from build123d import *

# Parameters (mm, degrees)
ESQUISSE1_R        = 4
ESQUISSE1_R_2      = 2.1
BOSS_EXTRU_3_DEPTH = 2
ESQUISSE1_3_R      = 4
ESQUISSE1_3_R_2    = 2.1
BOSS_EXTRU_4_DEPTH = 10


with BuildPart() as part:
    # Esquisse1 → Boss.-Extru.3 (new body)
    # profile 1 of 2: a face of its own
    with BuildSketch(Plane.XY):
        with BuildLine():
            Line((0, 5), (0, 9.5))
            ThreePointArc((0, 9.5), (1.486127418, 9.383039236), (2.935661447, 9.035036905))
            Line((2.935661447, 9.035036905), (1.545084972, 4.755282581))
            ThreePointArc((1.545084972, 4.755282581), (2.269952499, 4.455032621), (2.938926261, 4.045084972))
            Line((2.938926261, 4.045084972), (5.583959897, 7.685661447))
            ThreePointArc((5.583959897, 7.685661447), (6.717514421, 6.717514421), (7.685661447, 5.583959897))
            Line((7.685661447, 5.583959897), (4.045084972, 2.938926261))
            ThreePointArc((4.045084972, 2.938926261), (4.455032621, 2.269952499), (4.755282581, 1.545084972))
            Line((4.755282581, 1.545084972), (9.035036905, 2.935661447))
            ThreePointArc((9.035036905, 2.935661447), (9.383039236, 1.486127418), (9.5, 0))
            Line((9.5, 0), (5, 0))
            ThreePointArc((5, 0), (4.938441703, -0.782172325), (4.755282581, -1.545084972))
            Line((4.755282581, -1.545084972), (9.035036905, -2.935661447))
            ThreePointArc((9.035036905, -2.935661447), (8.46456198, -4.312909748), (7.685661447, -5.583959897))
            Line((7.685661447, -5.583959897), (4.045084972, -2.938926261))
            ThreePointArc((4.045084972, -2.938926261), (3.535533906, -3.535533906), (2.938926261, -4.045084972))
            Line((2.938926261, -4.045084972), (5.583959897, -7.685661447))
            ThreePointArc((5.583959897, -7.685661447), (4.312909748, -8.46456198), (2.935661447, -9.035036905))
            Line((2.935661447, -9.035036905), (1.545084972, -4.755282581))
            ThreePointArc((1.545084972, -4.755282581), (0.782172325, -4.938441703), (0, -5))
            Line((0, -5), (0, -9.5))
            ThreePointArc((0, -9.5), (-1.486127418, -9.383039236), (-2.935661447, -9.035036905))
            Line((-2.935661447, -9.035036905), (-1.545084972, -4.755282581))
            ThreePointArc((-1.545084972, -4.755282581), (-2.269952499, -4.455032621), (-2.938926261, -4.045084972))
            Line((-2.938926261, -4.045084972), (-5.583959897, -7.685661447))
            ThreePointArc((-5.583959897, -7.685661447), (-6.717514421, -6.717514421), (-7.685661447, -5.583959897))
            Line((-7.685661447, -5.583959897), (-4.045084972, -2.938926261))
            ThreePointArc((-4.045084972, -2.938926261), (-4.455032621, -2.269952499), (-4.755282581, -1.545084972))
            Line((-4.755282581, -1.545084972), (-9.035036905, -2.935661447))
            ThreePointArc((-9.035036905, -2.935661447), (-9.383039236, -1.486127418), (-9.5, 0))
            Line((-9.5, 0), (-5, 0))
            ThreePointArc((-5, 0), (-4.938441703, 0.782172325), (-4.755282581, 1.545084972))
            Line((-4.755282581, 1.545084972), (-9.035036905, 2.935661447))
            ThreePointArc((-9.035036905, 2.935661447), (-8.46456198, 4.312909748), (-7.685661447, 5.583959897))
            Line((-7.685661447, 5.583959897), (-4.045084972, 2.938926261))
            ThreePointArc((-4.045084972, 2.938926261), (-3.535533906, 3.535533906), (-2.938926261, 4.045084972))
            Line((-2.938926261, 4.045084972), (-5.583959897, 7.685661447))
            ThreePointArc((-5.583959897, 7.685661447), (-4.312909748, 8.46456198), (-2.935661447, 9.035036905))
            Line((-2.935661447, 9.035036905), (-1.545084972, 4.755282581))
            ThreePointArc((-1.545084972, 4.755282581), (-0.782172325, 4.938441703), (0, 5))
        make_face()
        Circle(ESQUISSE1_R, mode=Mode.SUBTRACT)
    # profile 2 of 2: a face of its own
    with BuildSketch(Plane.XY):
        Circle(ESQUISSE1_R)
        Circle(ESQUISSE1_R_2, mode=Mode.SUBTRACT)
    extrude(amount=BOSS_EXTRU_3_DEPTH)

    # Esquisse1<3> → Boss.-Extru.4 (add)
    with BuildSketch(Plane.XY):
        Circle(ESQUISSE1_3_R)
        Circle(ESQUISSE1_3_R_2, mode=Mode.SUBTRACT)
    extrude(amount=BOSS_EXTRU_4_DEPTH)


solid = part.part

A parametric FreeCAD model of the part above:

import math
import FreeCAD as App
import Part
import Sketcher
Q = App.Units.Quantity

doc = App.newDocument("Part")
params = doc.addObject("Spreadsheet::Sheet", "Params")
for row, (alias, value) in enumerate([
    ("sketch1_radius", "5 mm"),
    ("sketch1_diameter", "4.2 mm"),
    ("sketch1_radius2", "9.5 mm"),
    ("pad1_length", "2 mm"),
    ("sketch2_diameter", "8 mm"),
    ("sketch2_diameter2", "4.2 mm"),
    ("pad2_length", "10 mm"),
], start=1):
    params.set(f"A{row}", alias)
    params.set(f"B{row}", "=" + value)
    params.setAlias(f"B{row}", alias)

body = doc.addObject("PartDesign::Body", "Body")

# Sketch on XY plane
sketch1 = body.newObject("Sketcher::SketchObject", "Sketch")
sketch1.AttachmentSupport = (doc.getObject("XY_Plane"), [""])
sketch1.MapMode = "FlatFace"
sketch1.addGeometry([
    Part.LineSegment(App.Vector(0, 9.5, 0), App.Vector(0, 5, 0)),  # 0
    Part.ArcOfCircle(Part.Circle(App.Vector(0, 0, 0), App.Vector(0, 0, 1), 5), math.radians(90), math.radians(108)),  # 1
    Part.LineSegment(App.Vector(-1.545085, 4.755283, 0), App.Vector(-2.935661, 9.035037, 0)),  # 2
    Part.ArcOfCircle(Part.Circle(App.Vector(0, 0, 0), App.Vector(0, 0, 1), 9.5), math.radians(108), math.radians(126)),  # 3
    Part.LineSegment(App.Vector(-5.58396, 7.685661, 0), App.Vector(-2.938926, 4.045085, 0)),  # 4
    Part.ArcOfCircle(Part.Circle(App.Vector(0, 0, 0), App.Vector(0, 0, 1), 5), math.radians(126), math.radians(144)),  # 5
    Part.LineSegment(App.Vector(-4.045085, 2.938926, 0), App.Vector(-7.685661, 5.58396, 0)),  # 6
    Part.ArcOfCircle(Part.Circle(App.Vector(0, 0, 0), App.Vector(0, 0, 1), 9.5), math.radians(144), math.radians(162)),  # 7
    Part.LineSegment(App.Vector(-9.035037, 2.935661, 0), App.Vector(-4.755283, 1.545085, 0)),  # 8
    Part.ArcOfCircle(Part.Circle(App.Vector(0, 0, 0), App.Vector(0, 0, 1), 5), math.radians(162), math.radians(180)),  # 9
    Part.LineSegment(App.Vector(-5, 0, 0), App.Vector(-9.5, 0, 0)),  # 10
    Part.ArcOfCircle(Part.Circle(App.Vector(0, 0, 0), App.Vector(0, 0, 1), 9.5), math.radians(180), math.radians(198)),  # 11
    Part.LineSegment(App.Vector(-9.035037, -2.935661, 0), App.Vector(-4.755283, -1.545085, 0)),  # 12
    Part.ArcOfCircle(Part.Circle(App.Vector(0, 0, 0), App.Vector(0, 0, 1), 5), math.radians(-162), math.radians(-144)),  # 13
    Part.LineSegment(App.Vector(-4.045085, -2.938926, 0), App.Vector(-7.685661, -5.58396, 0)),  # 14
    Part.ArcOfCircle(Part.Circle(App.Vector(0, 0, 0), App.Vector(0, 0, 1), 9.5), math.radians(-144), math.radians(-126)),  # 15
    Part.LineSegment(App.Vector(-5.58396, -7.685661, 0), App.Vector(-2.938926, -4.045085, 0)),  # 16
    Part.ArcOfCircle(Part.Circle(App.Vector(0, 0, 0), App.Vector(0, 0, 1), 5), math.radians(-126), math.radians(-108)),  # 17
    Part.LineSegment(App.Vector(-1.545085, -4.755283, 0), App.Vector(-2.935661, -9.035037, 0)),  # 18
    Part.ArcOfCircle(Part.Circle(App.Vector(0, 0, 0), App.Vector(0, 0, 1), 9.5), math.radians(-108), math.radians(-90)),  # 19
    Part.LineSegment(App.Vector(0, -9.5, 0), App.Vector(0, -5, 0)),  # 20
    Part.ArcOfCircle(Part.Circle(App.Vector(0, 0, 0), App.Vector(0, 0, 1), 5), math.radians(-90), math.radians(-72)),  # 21
    Part.LineSegment(App.Vector(1.545085, -4.755283, 0), App.Vector(2.935661, -9.035037, 0)),  # 22
    Part.ArcOfCircle(Part.Circle(App.Vector(0, 0, 0), App.Vector(0, 0, 1), 9.5), math.radians(-72), math.radians(-54)),  # 23
    Part.LineSegment(App.Vector(5.58396, -7.685661, 0), App.Vector(2.938926, -4.045085, 0)),  # 24
    Part.ArcOfCircle(Part.Circle(App.Vector(0, 0, 0), App.Vector(0, 0, 1), 5), math.radians(-54), math.radians(-36)),  # 25
    Part.LineSegment(App.Vector(4.045085, -2.938926, 0), App.Vector(7.685661, -5.58396, 0)),  # 26
    Part.ArcOfCircle(Part.Circle(App.Vector(0, 0, 0), App.Vector(0, 0, 1), 9.5), math.radians(-36), math.radians(-18)),  # 27
    Part.LineSegment(App.Vector(9.035037, -2.935661, 0), App.Vector(4.755283, -1.545085, 0)),  # 28
    Part.ArcOfCircle(Part.Circle(App.Vector(0, 0, 0), App.Vector(0, 0, 1), 5), math.radians(-18), math.radians(0)),  # 29
    Part.LineSegment(App.Vector(5, 0, 0), App.Vector(9.5, 0, 0)),  # 30
    Part.ArcOfCircle(Part.Circle(App.Vector(0, 0, 0), App.Vector(0, 0, 1), 9.5), math.radians(0), math.radians(18)),  # 31
    Part.LineSegment(App.Vector(9.035037, 2.935661, 0), App.Vector(4.755283, 1.545085, 0)),  # 32
    Part.ArcOfCircle(Part.Circle(App.Vector(0, 0, 0), App.Vector(0, 0, 1), 5), math.radians(18), math.radians(36)),  # 33
    Part.LineSegment(App.Vector(4.045085, 2.938926, 0), App.Vector(7.685661, 5.58396, 0)),  # 34
    Part.ArcOfCircle(Part.Circle(App.Vector(0, 0, 0), App.Vector(0, 0, 1), 9.5), math.radians(36), math.radians(54)),  # 35
    Part.LineSegment(App.Vector(5.58396, 7.685661, 0), App.Vector(2.938926, 4.045085, 0)),  # 36
    Part.ArcOfCircle(Part.Circle(App.Vector(0, 0, 0), App.Vector(0, 0, 1), 5), math.radians(54), math.radians(72)),  # 37
    Part.LineSegment(App.Vector(1.545085, 4.755283, 0), App.Vector(2.935661, 9.035037, 0)),  # 38
    Part.ArcOfCircle(Part.Circle(App.Vector(0, 0, 0), App.Vector(0, 0, 1), 9.5), math.radians(72), math.radians(90)),  # 39
    Part.Circle(App.Vector(0, 0, 0), App.Vector(0, 0, 1), 2.1),  # 40
], False)
sketch1.addConstraint([
    Sketcher.Constraint("Coincident", 0, 2, 1, 1),
    Sketcher.Constraint("Coincident", 1, 2, 2, 1),
    Sketcher.Constraint("Coincident", 2, 2, 3, 1),
    Sketcher.Constraint("Coincident", 3, 2, 4, 1),
    Sketcher.Constraint("Coincident", 4, 2, 5, 1),
    Sketcher.Constraint("Coincident", 5, 2, 6, 1),
    Sketcher.Constraint("Coincident", 6, 2, 7, 1),
    Sketcher.Constraint("Coincident", 7, 2, 8, 1),
    Sketcher.Constraint("Coincident", 8, 2, 9, 1),
    Sketcher.Constraint("Coincident", 9, 2, 10, 1),
    Sketcher.Constraint("Coincident", 10, 2, 11, 1),
    Sketcher.Constraint("Coincident", 11, 2, 12, 1),
    Sketcher.Constraint("Coincident", 12, 2, 13, 1),
    Sketcher.Constraint("Coincident", 13, 2, 14, 1),
    Sketcher.Constraint("Coincident", 14, 2, 15, 1),
    Sketcher.Constraint("Coincident", 15, 2, 16, 1),
    Sketcher.Constraint("Coincident", 16, 2, 17, 1),
    Sketcher.Constraint("Coincident", 17, 2, 18, 1),
    Sketcher.Constraint("Coincident", 18, 2, 19, 1),
    Sketcher.Constraint("Coincident", 19, 2, 20, 1),
    Sketcher.Constraint("Coincident", 20, 2, 21, 1),
    Sketcher.Constraint("Coincident", 21, 2, 22, 1),
    Sketcher.Constraint("Coincident", 22, 2, 23, 1),
    Sketcher.Constraint("Coincident", 23, 2, 24, 1),
    Sketcher.Constraint("Coincident", 24, 2, 25, 1),
    Sketcher.Constraint("Coincident", 25, 2, 26, 1),
    Sketcher.Constraint("Coincident", 26, 2, 27, 1),
    Sketcher.Constraint("Coincident", 27, 2, 28, 1),
    Sketcher.Constraint("Coincident", 28, 2, 29, 1),
    Sketcher.Constraint("Coincident", 29, 2, 30, 1),
    Sketcher.Constraint("Coincident", 30, 2, 31, 1),
    Sketcher.Constraint("Coincident", 31, 2, 32, 1),
    Sketcher.Constraint("Coincident", 32, 2, 33, 1),
    Sketcher.Constraint("Coincident", 33, 2, 34, 1),
    Sketcher.Constraint("Coincident", 34, 2, 35, 1),
    Sketcher.Constraint("Coincident", 35, 2, 36, 1),
    Sketcher.Constraint("Coincident", 36, 2, 37, 1),
    Sketcher.Constraint("Coincident", 37, 2, 38, 1),
    Sketcher.Constraint("Coincident", 38, 2, 39, 1),
    Sketcher.Constraint("Coincident", 39, 2, 0, 1),
    Sketcher.Constraint("Vertical", 0),
    Sketcher.Constraint("Horizontal", 10),
    Sketcher.Constraint("Vertical", 20),
    Sketcher.Constraint("Horizontal", 30),
    Sketcher.Constraint("Coincident", 1, 3, -1, 1),
    Sketcher.Constraint("Coincident", 3, 3, -1, 1),
    Sketcher.Constraint("Coincident", 5, 3, -1, 1),
    Sketcher.Constraint("Coincident", 7, 3, -1, 1),
    Sketcher.Constraint("Coincident", 9, 3, -1, 1),
    Sketcher.Constraint("Coincident", 11, 3, -1, 1),
    Sketcher.Constraint("Coincident", 13, 3, -1, 1),
    Sketcher.Constraint("Coincident", 15, 3, -1, 1),
    Sketcher.Constraint("Coincident", 17, 3, -1, 1),
    Sketcher.Constraint("Coincident", 19, 3, -1, 1),
    Sketcher.Constraint("Coincident", 21, 3, -1, 1),
    Sketcher.Constraint("Coincident", 23, 3, -1, 1),
    Sketcher.Constraint("Coincident", 25, 3, -1, 1),
    Sketcher.Constraint("Coincident", 27, 3, -1, 1),
    Sketcher.Constraint("Coincident", 29, 3, -1, 1),
    Sketcher.Constraint("Coincident", 31, 3, -1, 1),
    Sketcher.Constraint("Coincident", 33, 3, -1, 1),
    Sketcher.Constraint("Coincident", 35, 3, -1, 1),
    Sketcher.Constraint("Coincident", 37, 3, -1, 1),
    Sketcher.Constraint("Coincident", 39, 3, -1, 1),
    Sketcher.Constraint("Coincident", 40, 3, -1, 1),
    Sketcher.Constraint("Equal", 1, 5),
    Sketcher.Constraint("Equal", 3, 7),
    Sketcher.Constraint("Equal", 5, 9),
    Sketcher.Constraint("Equal", 7, 11),
    Sketcher.Constraint("Equal", 9, 13),
    Sketcher.Constraint("Equal", 11, 15),
    Sketcher.Constraint("Equal", 13, 17),
    Sketcher.Constraint("Equal", 15, 19),
    Sketcher.Constraint("Equal", 17, 21),
    Sketcher.Constraint("Equal", 19, 23),
    Sketcher.Constraint("Equal", 21, 25),
    Sketcher.Constraint("Equal", 23, 27),
    Sketcher.Constraint("Equal", 25, 29),
    Sketcher.Constraint("Equal", 27, 31),
    Sketcher.Constraint("Equal", 29, 33),
    Sketcher.Constraint("Equal", 31, 35),
    Sketcher.Constraint("Equal", 33, 37),
    Sketcher.Constraint("Equal", 35, 39),
    Sketcher.Constraint("PointOnObject", 0, 2, -2),
    Sketcher.Constraint("PointOnObject", 9, 2, -1),
    Sketcher.Constraint("PointOnObject", 19, 2, -2),
    Sketcher.Constraint("PointOnObject", 29, 2, -1),
    Sketcher.Constraint("Perpendicular", 2, 12),
    Sketcher.Constraint("Perpendicular", 4, 14),
    Sketcher.Constraint("Perpendicular", 6, 16),
    Sketcher.Constraint("Perpendicular", 8, 18),
    Sketcher.Constraint("Perpendicular", 12, 22),
    Sketcher.Constraint("Perpendicular", 14, 24),
    Sketcher.Constraint("Perpendicular", 16, 26),
    Sketcher.Constraint("Perpendicular", 18, 28),
    Sketcher.Constraint("Perpendicular", 22, 32),
    Sketcher.Constraint("Perpendicular", 24, 34),
    Sketcher.Constraint("Perpendicular", 26, 36),
    Sketcher.Constraint("Perpendicular", 28, 38),
    Sketcher.Constraint("Horizontal", 17, 2, 21, 2),
    Sketcher.Constraint("Horizontal", 18, 2, 22, 2),
    Sketcher.Constraint("Horizontal", 15, 2, 23, 2),
    Sketcher.Constraint("Horizontal", 16, 2, 24, 2),
    Sketcher.Constraint("Horizontal", 13, 2, 25, 2),
    Sketcher.Constraint("Horizontal", 11, 2, 27, 2),
    Sketcher.Constraint("Horizontal", 7, 2, 31, 2),
    Sketcher.Constraint("Horizontal", 5, 2, 33, 2),
    Sketcher.Constraint("Horizontal", 3, 2, 35, 2),
    Sketcher.Constraint("Horizontal", 1, 2, 37, 2),
    Sketcher.Constraint("Vertical", 7, 2, 11, 2),
    Sketcher.Constraint("Vertical", 5, 2, 13, 2),
    Sketcher.Constraint("Vertical", 3, 2, 15, 2),
    Sketcher.Constraint("Vertical", 1, 2, 17, 2),
    Sketcher.Constraint("Radius", 1, 5.0),
    Sketcher.Constraint("Diameter", 40, 4.2),
    Sketcher.Constraint("Radius", 3, 9.5),
    Sketcher.Constraint("Angle", 2, Q("108 deg")),
    Sketcher.Constraint("Angle", 4, Q("-54 deg")),
    Sketcher.Constraint("DistanceX", 2, 2, -1, 1, 2.935661),
    Sketcher.Constraint("DistanceX", 3, 2, -1, 1, 5.58396),
    Sketcher.Constraint("DistanceX", 6, 2, -1, 1, 7.685661),
    Sketcher.Constraint("DistanceY", -1, 1, 7, 2, 2.935661),
])
sketch1.setExpression("Constraints[113]", "Params.sketch1_radius")
sketch1.setExpression("Constraints[114]", "Params.sketch1_diameter")
sketch1.setExpression("Constraints[115]", "Params.sketch1_radius2")
pad1 = body.newObject("PartDesign::Pad", "Pad")
pad1.Profile = sketch1
pad1.setExpression("Length", "Params.pad1_length")

# Sketch on XY plane
sketch2 = body.newObject("Sketcher::SketchObject", "Sketch001")
sketch2.AttachmentSupport = (doc.getObject("XY_Plane"), [""])
sketch2.MapMode = "FlatFace"
sketch2.addGeometry([
    Part.Circle(App.Vector(0, 0, 0), App.Vector(0, 0, 1), 4),
    Part.Circle(App.Vector(0, 0, 0), App.Vector(0, 0, 1), 2.1),
], False)
sketch2.addConstraint([
    Sketcher.Constraint("Coincident", 0, 3, -1, 1),
    Sketcher.Constraint("Coincident", 1, 3, -1, 1),
    Sketcher.Constraint("Diameter", 0, 8.0),
    Sketcher.Constraint("Diameter", 1, 4.2),
])
sketch2.setExpression("Constraints[2]", "Params.sketch2_diameter")
sketch2.setExpression("Constraints[3]", "Params.sketch2_diameter2")
pad2 = body.newObject("PartDesign::Pad", "Pad001")
pad2.Profile = sketch2
pad2.setExpression("Length", "Params.pad2_length")

doc.recompute()
